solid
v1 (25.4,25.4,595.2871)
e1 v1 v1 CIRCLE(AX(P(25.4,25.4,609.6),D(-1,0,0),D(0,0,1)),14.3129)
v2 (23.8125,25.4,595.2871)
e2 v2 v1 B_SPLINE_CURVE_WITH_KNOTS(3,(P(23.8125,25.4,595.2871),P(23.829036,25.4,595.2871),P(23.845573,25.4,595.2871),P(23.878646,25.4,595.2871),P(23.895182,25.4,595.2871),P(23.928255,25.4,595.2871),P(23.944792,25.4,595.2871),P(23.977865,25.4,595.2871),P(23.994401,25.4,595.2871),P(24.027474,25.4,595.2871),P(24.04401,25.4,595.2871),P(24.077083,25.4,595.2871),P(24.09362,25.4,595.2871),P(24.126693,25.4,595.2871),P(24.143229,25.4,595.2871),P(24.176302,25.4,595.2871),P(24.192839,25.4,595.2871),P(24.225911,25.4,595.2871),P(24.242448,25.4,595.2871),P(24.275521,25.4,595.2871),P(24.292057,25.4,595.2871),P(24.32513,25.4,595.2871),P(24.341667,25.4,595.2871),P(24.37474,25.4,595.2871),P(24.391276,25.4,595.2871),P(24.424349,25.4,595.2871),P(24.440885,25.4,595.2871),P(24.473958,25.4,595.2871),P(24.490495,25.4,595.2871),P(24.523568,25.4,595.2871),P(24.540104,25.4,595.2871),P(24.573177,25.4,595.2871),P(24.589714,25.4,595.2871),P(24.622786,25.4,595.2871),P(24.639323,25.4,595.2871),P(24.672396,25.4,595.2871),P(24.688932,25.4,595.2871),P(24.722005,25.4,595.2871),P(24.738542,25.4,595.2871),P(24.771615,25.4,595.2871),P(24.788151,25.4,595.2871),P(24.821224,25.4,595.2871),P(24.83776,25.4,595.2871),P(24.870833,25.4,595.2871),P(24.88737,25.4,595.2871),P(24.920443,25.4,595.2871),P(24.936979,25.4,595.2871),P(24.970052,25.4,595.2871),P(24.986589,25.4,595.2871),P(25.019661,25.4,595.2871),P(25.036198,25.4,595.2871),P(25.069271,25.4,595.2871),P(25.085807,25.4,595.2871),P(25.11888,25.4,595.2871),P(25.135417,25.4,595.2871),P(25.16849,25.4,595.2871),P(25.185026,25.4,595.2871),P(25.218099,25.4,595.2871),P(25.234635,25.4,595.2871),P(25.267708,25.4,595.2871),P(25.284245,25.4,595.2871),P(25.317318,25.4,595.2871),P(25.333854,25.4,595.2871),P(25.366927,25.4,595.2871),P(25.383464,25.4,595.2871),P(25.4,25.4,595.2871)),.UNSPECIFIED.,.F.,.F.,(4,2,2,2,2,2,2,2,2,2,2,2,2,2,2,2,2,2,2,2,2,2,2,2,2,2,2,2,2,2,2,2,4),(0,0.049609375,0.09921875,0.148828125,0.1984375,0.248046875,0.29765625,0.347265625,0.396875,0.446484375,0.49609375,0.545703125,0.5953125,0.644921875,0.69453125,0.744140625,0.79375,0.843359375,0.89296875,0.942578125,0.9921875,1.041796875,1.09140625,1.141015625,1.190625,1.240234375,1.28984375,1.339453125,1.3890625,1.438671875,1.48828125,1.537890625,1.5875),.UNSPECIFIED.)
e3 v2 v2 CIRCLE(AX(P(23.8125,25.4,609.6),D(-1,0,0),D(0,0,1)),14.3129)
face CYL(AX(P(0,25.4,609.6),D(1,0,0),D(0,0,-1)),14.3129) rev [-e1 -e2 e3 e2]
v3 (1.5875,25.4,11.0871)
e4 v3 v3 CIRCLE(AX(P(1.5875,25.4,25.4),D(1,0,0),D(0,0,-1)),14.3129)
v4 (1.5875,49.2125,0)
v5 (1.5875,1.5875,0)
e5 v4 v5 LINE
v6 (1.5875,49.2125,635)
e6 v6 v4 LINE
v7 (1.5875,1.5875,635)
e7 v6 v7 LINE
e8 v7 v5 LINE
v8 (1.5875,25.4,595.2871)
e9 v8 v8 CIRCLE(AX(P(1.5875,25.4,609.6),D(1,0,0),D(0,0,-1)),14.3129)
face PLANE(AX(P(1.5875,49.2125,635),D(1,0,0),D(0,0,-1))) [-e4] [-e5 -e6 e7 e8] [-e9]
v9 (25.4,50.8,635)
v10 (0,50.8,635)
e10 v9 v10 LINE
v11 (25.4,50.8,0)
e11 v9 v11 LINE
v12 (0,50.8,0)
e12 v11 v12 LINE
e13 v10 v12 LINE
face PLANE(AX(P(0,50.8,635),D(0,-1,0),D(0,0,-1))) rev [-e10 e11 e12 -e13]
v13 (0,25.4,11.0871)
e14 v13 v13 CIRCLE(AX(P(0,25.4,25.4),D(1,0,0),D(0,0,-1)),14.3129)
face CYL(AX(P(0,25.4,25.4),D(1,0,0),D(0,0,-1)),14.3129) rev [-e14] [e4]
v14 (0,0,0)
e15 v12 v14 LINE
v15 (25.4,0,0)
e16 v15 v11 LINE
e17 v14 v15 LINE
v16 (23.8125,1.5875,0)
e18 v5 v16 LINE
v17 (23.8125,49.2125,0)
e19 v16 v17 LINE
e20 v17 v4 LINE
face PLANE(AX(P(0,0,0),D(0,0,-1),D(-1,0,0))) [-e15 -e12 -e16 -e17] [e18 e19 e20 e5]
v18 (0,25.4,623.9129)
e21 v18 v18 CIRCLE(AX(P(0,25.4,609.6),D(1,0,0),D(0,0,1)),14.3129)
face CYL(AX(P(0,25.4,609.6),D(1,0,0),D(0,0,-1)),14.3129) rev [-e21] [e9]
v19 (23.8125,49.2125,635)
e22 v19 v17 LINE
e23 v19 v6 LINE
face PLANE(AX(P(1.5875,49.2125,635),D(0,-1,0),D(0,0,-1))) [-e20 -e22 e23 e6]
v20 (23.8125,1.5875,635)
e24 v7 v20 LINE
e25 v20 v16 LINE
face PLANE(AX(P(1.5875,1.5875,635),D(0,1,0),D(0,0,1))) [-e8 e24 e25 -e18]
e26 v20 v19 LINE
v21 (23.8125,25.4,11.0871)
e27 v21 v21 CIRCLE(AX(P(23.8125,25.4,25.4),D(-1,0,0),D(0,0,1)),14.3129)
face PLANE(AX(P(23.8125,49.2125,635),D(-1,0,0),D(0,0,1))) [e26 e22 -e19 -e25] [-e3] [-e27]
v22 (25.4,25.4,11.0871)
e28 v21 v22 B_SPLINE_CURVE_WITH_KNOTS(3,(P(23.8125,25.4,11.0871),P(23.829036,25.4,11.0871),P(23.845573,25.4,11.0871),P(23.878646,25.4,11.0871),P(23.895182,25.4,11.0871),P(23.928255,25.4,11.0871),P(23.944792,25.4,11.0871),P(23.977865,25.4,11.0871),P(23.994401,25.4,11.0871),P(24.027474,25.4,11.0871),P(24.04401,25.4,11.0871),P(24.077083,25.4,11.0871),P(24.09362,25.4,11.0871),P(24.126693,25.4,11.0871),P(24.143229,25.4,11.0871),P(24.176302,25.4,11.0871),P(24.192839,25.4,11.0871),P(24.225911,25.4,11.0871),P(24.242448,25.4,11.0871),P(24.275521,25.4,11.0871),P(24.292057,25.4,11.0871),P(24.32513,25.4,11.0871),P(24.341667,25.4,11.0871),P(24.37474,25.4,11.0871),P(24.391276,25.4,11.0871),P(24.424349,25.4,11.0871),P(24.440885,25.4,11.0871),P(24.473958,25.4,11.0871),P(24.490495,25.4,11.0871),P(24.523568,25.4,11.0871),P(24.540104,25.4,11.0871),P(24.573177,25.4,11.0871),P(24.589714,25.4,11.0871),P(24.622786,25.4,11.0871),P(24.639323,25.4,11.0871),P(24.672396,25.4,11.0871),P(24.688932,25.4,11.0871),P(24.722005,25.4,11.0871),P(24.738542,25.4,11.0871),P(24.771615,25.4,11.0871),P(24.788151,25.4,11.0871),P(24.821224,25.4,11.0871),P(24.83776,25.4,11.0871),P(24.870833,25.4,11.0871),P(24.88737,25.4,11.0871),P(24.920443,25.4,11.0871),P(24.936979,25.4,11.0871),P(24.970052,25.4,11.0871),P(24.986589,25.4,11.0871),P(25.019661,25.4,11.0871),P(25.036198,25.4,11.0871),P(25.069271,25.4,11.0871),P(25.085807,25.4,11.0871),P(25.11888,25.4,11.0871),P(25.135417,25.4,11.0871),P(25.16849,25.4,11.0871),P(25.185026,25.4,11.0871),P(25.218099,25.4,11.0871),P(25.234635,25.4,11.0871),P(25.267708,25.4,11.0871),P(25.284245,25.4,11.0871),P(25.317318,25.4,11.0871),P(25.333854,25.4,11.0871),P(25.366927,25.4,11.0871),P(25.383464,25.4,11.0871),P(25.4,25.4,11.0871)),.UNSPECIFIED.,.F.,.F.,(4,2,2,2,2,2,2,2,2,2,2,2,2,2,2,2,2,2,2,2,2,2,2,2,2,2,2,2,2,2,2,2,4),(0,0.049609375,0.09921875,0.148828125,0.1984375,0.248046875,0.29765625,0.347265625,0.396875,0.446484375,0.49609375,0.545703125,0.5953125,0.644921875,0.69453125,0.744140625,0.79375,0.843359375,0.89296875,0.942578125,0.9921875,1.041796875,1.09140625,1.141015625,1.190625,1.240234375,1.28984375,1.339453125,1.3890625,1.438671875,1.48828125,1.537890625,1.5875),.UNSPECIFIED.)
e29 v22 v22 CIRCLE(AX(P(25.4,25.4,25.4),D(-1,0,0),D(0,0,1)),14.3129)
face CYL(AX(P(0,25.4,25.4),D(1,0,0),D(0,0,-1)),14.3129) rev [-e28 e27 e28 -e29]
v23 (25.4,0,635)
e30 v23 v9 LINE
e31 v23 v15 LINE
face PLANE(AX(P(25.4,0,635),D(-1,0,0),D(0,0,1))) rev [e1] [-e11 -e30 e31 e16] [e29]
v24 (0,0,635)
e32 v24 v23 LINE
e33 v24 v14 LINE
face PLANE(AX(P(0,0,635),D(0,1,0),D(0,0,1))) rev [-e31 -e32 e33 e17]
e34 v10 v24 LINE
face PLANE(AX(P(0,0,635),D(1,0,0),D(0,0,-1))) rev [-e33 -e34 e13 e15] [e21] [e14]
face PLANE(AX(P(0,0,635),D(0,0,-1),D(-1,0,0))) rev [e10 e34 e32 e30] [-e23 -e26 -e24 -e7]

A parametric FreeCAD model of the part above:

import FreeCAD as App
import Part
import Sketcher
from FreeCAD import Vector
Q = App.Units.Quantity


def add_polygon(sketch, points):
    """Adds a closed chain of lines whose ends are joined by coincident constraints."""
    first, n = sketch.GeometryCount, len(points)
    for a, b in zip(points, points[1:] + points[:1]):
        sketch.addGeometry(Part.LineSegment(App.Vector(*a, 0), App.Vector(*b, 0)), False)
    for i in range(n):
        sketch.addConstraint(Sketcher.Constraint("Coincident", first + i, 2, first + (i + 1) % n, 1))

doc = App.newDocument("Part")
params = doc.addObject("Spreadsheet::Sheet", "Params")
for row, (alias, value) in enumerate([
    ("sketch1_width", "1 in"),
    ("sketch1_height", "2 in"),
    ("sketch1_width2", "0.875 in"),
    ("sketch1_height2", "1.875 in"),
    ("pad1_length", "25 in"),
    ("sketch2_diameter", "1.127 in"),
], start=1):
    params.set(f"A{row}", alias)
    params.set(f"B{row}", "=" + value)
    params.setAlias(f"B{row}", alias)

body = doc.addObject("PartDesign::Body", "Body")

sketch1 = doc.addObject("Sketcher::SketchObject", "Sketch")
body.addObject(sketch1)
sketch1.AttachmentSupport = (doc.XY_Plane, [""])
sketch1.MapMode = "FlatFace"
add_polygon(sketch1, [(0, 51), (0, 0), (25, 0), (25, 51)])
add_polygon(sketch1, [(24, 2), (2, 2), (2, 49), (24, 49)])
sketch1.addConstraint([
    Sketcher.Constraint("Vertical", 0),
    Sketcher.Constraint("Horizontal", 1),
    Sketcher.Constraint("Vertical", 2),
    Sketcher.Constraint("Horizontal", 3),
    Sketcher.Constraint("Horizontal", 4),
    Sketcher.Constraint("Vertical", 5),
    Sketcher.Constraint("Horizontal", 6),
    Sketcher.Constraint("Vertical", 7),
    Sketcher.Constraint("Coincident", 0, 2, -1, 1),
    Sketcher.Constraint("DistanceX", 1, 1, 1, 2, Q("1 in")),
    Sketcher.Constraint("DistanceY", 0, 2, 0, 1, Q("2 in")),
    Sketcher.Constraint("DistanceX", 4, 2, 4, 1, Q("0.875 in")),
    Sketcher.Constraint("DistanceY", 5, 1, 5, 2, Q("1.875 in")),
    Sketcher.Constraint("DistanceX", -1, 1, 4, 2, Q("0.0625 in")),
    Sketcher.Constraint("DistanceY", -1, 1, 4, 2, Q("0.0625 in")),
])
sketch1.setExpression("Constraints[17]", "Params.sketch1_width")
sketch1.setExpression("Constraints[18]", "Params.sketch1_height")
sketch1.setExpression("Constraints[19]", "Params.sketch1_width2")
sketch1.setExpression("Constraints[20]", "Params.sketch1_height2")
pad1 = doc.addObject("PartDesign::Pad", "Pad")
body.addObject(pad1)
pad1.Profile = sketch1
pad1.setExpression("Length", "Params.pad1_length")

sketch2 = doc.addObject("Sketcher::SketchObject", "Sketch001")
body.addObject(sketch2)
sketch2.AttachmentSupport = (doc.YZ_Plane, [""])
sketch2.MapMode = "FlatFace"
sketch2.AttachmentOffset = App.Placement(Vector(0, 0, 1 * 25.4), App.Rotation())
sketch2.addGeometry([
    Part.Circle(Vector(25, 25, 0), Vector(0, 0, 1), 14),
    Part.Circle(Vector(25, 610, 0), Vector(0, 0, 1), 14),
], False)
sketch2.addConstraint([
    Sketcher.Constraint("Equal", 0, 1),
    Sketcher.Constraint("Vertical", 0, 3, 1, 3),
    Sketcher.Constraint("Diameter", 0, Q("1.127 in")),
    Sketcher.Constraint("DistanceX", -1, 1, 0, 3, Q("1 in")),
    Sketcher.Constraint("DistanceY", -1, 1, 0, 3, Q("1 in")),
    Sketcher.Constraint("DistanceY", -1, 1, 1, 3, Q("24 in")),
])
sketch2.setExpression("Constraints[2]", "Params.sketch2_diameter")
pocket1 = doc.addObject("PartDesign::Pocket", "Pocket")
body.addObject(pocket1)
pocket1.Profile = sketch2
pocket1.Type = "ThroughAll"
pocket1.Midplane = True

doc.recompute()
